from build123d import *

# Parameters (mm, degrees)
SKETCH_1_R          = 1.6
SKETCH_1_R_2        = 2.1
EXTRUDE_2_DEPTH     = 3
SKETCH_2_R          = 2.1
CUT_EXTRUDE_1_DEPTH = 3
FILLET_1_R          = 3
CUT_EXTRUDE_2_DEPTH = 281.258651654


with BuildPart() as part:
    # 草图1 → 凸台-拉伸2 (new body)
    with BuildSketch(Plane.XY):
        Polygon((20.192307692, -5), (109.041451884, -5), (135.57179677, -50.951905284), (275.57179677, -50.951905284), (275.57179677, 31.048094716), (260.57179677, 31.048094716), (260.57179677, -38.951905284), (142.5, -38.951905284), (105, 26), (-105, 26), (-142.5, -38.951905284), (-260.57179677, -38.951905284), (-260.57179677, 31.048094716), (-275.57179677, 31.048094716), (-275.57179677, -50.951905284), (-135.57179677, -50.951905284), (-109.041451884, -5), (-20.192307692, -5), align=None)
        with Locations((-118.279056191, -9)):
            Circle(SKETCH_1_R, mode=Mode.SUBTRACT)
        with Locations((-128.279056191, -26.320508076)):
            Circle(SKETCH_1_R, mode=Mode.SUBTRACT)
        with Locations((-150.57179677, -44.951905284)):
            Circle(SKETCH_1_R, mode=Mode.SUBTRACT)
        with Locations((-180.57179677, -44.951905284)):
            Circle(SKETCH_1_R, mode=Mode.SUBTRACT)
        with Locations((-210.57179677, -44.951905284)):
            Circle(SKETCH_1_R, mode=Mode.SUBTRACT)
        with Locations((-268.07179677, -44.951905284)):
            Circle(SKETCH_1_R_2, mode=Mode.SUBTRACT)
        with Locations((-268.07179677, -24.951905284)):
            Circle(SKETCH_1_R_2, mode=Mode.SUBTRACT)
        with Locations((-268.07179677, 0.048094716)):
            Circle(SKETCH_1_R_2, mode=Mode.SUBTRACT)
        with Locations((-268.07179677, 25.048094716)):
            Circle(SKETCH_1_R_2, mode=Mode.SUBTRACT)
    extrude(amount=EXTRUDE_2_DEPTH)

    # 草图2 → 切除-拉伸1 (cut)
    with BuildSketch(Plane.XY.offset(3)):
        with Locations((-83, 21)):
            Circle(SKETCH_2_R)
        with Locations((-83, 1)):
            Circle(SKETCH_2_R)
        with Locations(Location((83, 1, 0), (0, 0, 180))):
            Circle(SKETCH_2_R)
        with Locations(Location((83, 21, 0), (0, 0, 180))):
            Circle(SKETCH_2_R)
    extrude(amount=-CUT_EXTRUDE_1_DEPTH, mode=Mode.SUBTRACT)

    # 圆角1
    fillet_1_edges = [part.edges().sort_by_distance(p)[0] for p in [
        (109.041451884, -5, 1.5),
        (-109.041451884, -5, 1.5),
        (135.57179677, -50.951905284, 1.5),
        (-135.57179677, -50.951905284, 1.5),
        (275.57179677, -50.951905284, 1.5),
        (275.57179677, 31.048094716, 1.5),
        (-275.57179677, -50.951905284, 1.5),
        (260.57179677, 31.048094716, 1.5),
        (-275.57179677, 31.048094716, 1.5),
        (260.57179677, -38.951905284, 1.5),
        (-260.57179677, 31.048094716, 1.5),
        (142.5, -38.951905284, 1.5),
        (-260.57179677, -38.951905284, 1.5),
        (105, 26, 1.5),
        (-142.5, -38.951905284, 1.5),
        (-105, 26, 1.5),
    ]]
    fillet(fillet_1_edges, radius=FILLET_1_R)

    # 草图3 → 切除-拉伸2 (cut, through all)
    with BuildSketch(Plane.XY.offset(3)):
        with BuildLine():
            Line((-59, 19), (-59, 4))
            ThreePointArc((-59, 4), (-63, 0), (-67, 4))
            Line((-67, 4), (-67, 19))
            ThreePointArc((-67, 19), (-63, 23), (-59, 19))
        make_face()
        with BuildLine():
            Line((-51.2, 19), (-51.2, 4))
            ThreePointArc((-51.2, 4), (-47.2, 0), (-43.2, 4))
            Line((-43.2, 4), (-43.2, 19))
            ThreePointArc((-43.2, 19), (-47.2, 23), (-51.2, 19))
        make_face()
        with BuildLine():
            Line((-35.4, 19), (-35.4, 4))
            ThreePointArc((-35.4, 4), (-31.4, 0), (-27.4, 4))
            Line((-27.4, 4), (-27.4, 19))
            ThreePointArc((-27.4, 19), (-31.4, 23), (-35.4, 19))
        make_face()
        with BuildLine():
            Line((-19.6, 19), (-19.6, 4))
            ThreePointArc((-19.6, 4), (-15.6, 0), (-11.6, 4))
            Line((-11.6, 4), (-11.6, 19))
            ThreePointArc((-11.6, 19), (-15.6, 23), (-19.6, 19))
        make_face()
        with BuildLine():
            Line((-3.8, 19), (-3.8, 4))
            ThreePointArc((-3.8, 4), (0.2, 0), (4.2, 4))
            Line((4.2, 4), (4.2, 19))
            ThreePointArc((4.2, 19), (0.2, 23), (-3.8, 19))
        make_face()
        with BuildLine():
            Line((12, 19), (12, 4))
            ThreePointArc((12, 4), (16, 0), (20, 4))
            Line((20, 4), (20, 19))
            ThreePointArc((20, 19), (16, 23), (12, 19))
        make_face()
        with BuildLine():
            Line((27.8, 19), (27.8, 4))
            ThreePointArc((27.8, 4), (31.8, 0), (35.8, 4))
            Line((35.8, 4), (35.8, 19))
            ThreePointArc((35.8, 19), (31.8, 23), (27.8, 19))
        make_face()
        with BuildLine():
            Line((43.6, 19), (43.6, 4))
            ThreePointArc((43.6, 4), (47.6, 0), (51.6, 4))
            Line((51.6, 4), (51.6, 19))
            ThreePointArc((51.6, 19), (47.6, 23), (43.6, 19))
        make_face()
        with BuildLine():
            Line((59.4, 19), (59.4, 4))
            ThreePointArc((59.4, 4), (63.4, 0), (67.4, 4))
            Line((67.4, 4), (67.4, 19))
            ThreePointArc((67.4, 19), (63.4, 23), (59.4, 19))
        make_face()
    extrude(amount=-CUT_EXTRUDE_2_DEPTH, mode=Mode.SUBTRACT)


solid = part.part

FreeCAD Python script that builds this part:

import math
import FreeCAD as App
import Part
import Sketcher
Q = App.Units.Quantity


def edges_at(feature, points):
    """Names of the edges that pass closest to the given points."""
    edges = feature.Shape.Edges
    near = lambda p: min(range(len(edges)), key=lambda i: edges[i].distToShape(Part.Vertex(*p))[0])
    return sorted({f"Edge{near(p) + 1}" for p in points})


def add_polygon(sketch, points):
    """Adds a closed chain of lines whose ends are joined by coincident constraints."""
    first, n = sketch.GeometryCount, len(points)
    for a, b in zip(points, points[1:] + points[:1]):
        sketch.addGeometry(Part.LineSegment(App.Vector(*a, 0), App.Vector(*b, 0)), False)
    for i in range(n):
        sketch.addConstraint(Sketcher.Constraint("Coincident", first + i, 2, first + (i + 1) % n, 1))

doc = App.newDocument("Part")
body = doc.addObject("PartDesign::Body", "Body")

sketch1 = body.newObject("Sketcher::SketchObject", "Sketch")
sketch1.AttachmentSupport = (doc.getObject("XY_Plane"), [""])
sketch1.MapMode = "FlatFace"
add_polygon(sketch1, [(109, -5), (135.6, -51), (275.6, -51), (275.6, 31), (260.6, 31), (260.6, -39), (142.5, -39), (105, 26), (-105, 26), (-142.5, -39), (-260.6, -39), (-260.6, 31), (-275.6, 31), (-275.6, -51), (-135.6, -51), (-109, -5)])
sketch1.addGeometry(Part.Circle(App.Vector(-268.1, -45, 0), App.Vector(0, 0, 1), 2.1), False)
sketch1.addGeometry(Part.Circle(App.Vector(-210.6, -45, 0), App.Vector(0, 0, 1), 1.6), False)
sketch1.addGeometry(Part.Circle(App.Vector(-268.1, -25, 0), App.Vector(0, 0, 1), 2.1), False)
sketch1.addGeometry(Part.Circle(App.Vector(-180.6, -45, 0), App.Vector(0, 0, 1), 1.6), False)
sketch1.addGeometry(Part.Circle(App.Vector(-150.6, -45, 0), App.Vector(0, 0, 1), 1.6), False)
sketch1.addGeometry(Part.Circle(App.Vector(-128.3, -26.3, 0), App.Vector(0, 0, 1), 1.6), False)
sketch1.addGeometry(Part.Circle(App.Vector(-268.1, 0, 0), App.Vector(0, 0, 1), 2.1), False)
sketch1.addGeometry(Part.Circle(App.Vector(-268.1, 25, 0), App.Vector(0, 0, 1), 2.1), False)
sketch1.addGeometry(Part.Circle(App.Vector(-118.3, -9, 0), App.Vector(0, 0, 1), 1.6), False)
sketch1.addConstraint([
    Sketcher.Constraint("Horizontal", 1),
    Sketcher.Constraint("Vertical", 2),
    Sketcher.Constraint("Horizontal", 3),
    Sketcher.Constraint("Vertical", 4),
    Sketcher.Constraint("Horizontal", 5),
    Sketcher.Constraint("Horizontal", 7),
    Sketcher.Constraint("Horizontal", 9),
    Sketcher.Constraint("Vertical", 10),
    Sketcher.Constraint("Horizontal", 11),
    Sketcher.Constraint("Vertical", 12),
    Sketcher.Constraint("Horizontal", 13),
    Sketcher.Constraint("Horizontal", 15),
    Sketcher.Constraint("Equal", 16, 18),
    Sketcher.Constraint("Equal", 17, 19),
    Sketcher.Constraint("Equal", 19, 20),
    Sketcher.Constraint("Equal", 20, 21),
    Sketcher.Constraint("Equal", 18, 22),
    Sketcher.Constraint("Equal", 22, 23),
    Sketcher.Constraint("Equal", 21, 24),
    Sketcher.Constraint("Symmetric", 5, 2, 8, 2, -2),
    Sketcher.Constraint("Symmetric", 3, 2, 10, 2, -2),
    Sketcher.Constraint("Symmetric", 1, 2, 12, 2, -2),
    Sketcher.Constraint("Parallel", 0, 6),
    Sketcher.Constraint("Parallel", 8, 14),
    Sketcher.Constraint("Horizontal", 16, 3, 17, 3),
    Sketcher.Constraint("Horizontal", 17, 3, 19, 3),
    Sketcher.Constraint("Horizontal", 19, 3, 20, 3),
    Sketcher.Constraint("Vertical", 16, 3, 18, 3),
    Sketcher.Constraint("Vertical", 18, 3, 22, 3),
    Sketcher.Constraint("Vertical", 22, 3, 23, 3),
    Sketcher.Constraint("Equal", 1, 13),
    Sketcher.Constraint("Equal", 6, 8),
    Sketcher.Constraint("Diameter", 16, 4.2),
    Sketcher.Constraint("Diameter", 17, 3.2),
    Sketcher.Constraint("DistanceX", 1, 1, 1, 2, 140.0),
    Sketcher.Constraint("DistanceX", 3, 2, 3, 1, 15.0),
    Sketcher.Constraint("DistanceX", 7, 2, 7, 1, 210.0),
    Sketcher.Constraint("DistanceY", 2, 1, 2, 2, 82.0),
    Sketcher.Constraint("DistanceY", 4, 2, 4, 1, 70.0),
    Sketcher.Constraint("Angle", 0, Q("-60 deg")),
    Sketcher.Constraint("Distance", 6, 75.0),
    Sketcher.Constraint("DistanceY", 24, 3, -1, 1, 9.0),
    Sketcher.Constraint("DistanceY", -1, 1, 6, 2, 26.0),
    Sketcher.Constraint("DistanceY", 14, 2, -1, 1, 5.0),
    Sketcher.Constraint("DistanceY", 16, 3, 18, 3, 20.0),
    Sketcher.Constraint("DistanceX", 17, 3, 19, 3, 30.0),
    Sketcher.Constraint("DistanceX", 19, 3, 20, 3, 30.0),
    Sketcher.Constraint("DistanceY", 18, 3, 22, 3, 25.0),
    Sketcher.Constraint("DistanceY", 22, 3, 23, 3, 25.0),
    Sketcher.Constraint("DistanceX", 21, 3, 24, 3, 10.0),
    Sketcher.Constraint("DistanceY", 0, 2, 20, 3, 6.0),
    Sketcher.Constraint("DistanceX", 9, 2, 17, 3, 50.0),
    Sketcher.Constraint("DistanceX", 16, 3, 17, 3, 57.5),
    Sketcher.Constraint("DistanceX", 5, 2, 5, 1, 118.071797),
    Sketcher.Constraint("DistanceY", 21, 3, -1, 1, 26.320508),
    Sketcher.Constraint("DistanceX", 20, 3, 21, 3, 22.292741),
])
pad1 = body.newObject("PartDesign::Pad", "Pad")
pad1.Profile = sketch1
pad1.Length = 3

sketch2 = body.newObject("Sketcher::SketchObject", "Sketch001")
sketch2.AttachmentSupport = (doc.getObject("XY_Plane"), [""])
sketch2.MapMode = "FlatFace"
sketch2.AttachmentOffset = App.Placement(App.Vector(0, 0, 3), App.Rotation())
sketch2.addGeometry([
    Part.Circle(App.Vector(-83, 21, 0), App.Vector(0, 0, 1), 2.1),
    Part.Circle(App.Vector(-83, 1, 0), App.Vector(0, 0, 1), 2.1),
    Part.Circle(App.Vector(83, 1, 0), App.Vector(0, 0, 1), 2.1),
    Part.Circle(App.Vector(83, 21, 0), App.Vector(0, 0, 1), 2.1),
], False)
sketch2.addConstraint([
    Sketcher.Constraint("Equal", 0, 1),
    Sketcher.Constraint("Equal", 1, 2),
    Sketcher.Constraint("Equal", 2, 3),
    Sketcher.Constraint("Symmetric", 1, 3, 2, 3, -2),
    Sketcher.Constraint("Symmetric", 0, 3, 3, 3, -2),
    Sketcher.Constraint("Vertical", 0, 3, 1, 3),
    Sketcher.Constraint("Diameter", 0, 4.2),
    Sketcher.Constraint("DistanceX", 0, 3, -1, 1, 83.0),
    Sketcher.Constraint("DistanceY", -1, 1, 0, 3, 21.0),
    Sketcher.Constraint("DistanceY", -1, 1, 1, 3, 1.0),
])
pocket1 = body.newObject("PartDesign::Pocket", "Pocket")
pocket1.Profile = sketch2
pocket1.Length = 3
doc.recompute()

fillet = body.newObject("PartDesign::Fillet", "Fillet")
fillet.Base = (pocket1, edges_at(pocket1, [
    (109.041, -5, 1.5),
    (-109.041, -5, 1.5),
    (135.572, -50.952, 1.5),
    (-135.572, -50.952, 1.5),
    (275.572, -50.952, 1.5),
    (275.572, 31.048, 1.5),
    (-275.572, -50.952, 1.5),
    (260.572, 31.048, 1.5),
    (-275.572, 31.048, 1.5),
    (260.572, -38.952, 1.5),
    (-260.572, 31.048, 1.5),
    (142.5, -38.952, 1.5),
    (-260.572, -38.952, 1.5),
    (105, 26, 1.5),
    (-142.5, -38.952, 1.5),
    (-105, 26, 1.5),
]))
fillet.Radius = 3

sketch3 = body.newObject("Sketcher::SketchObject", "Sketch002")
sketch3.AttachmentSupport = (doc.getObject("XY_Plane"), [""])
sketch3.MapMode = "FlatFace"
sketch3.AttachmentOffset = App.Placement(App.Vector(0, 0, 3), App.Rotation())
sketch3.addGeometry([
    Part.LineSegment(App.Vector(-59, 4, 0), App.Vector(-59, 19, 0)),
    Part.ArcOfCircle(Part.Circle(App.Vector(-63, 19, 0), App.Vector(0, 0, 1), 4), math.radians(0), math.radians(180)),
    Part.LineSegment(App.Vector(-67, 19, 0), App.Vector(-67, 4, 0)),
    Part.ArcOfCircle(Part.Circle(App.Vector(-63, 4, 0), App.Vector(0, 0, 1), 4), math.radians(180), math.radians(360)),
    Part.LineSegment(App.Vector(-51.2, 19, 0), App.Vector(-51.2, 4, 0)),
    Part.ArcOfCircle(Part.Circle(App.Vector(-47.2, 4, 0), App.Vector(0, 0, 1), 4), math.radians(180), math.radians(360)),
    Part.LineSegment(App.Vector(-43.2, 4, 0), App.Vector(-43.2, 19, 0)),
    Part.ArcOfCircle(Part.Circle(App.Vector(-47.2, 19, 0), App.Vector(0, 0, 1), 4), math.radians(0), math.radians(180)),
    Part.LineSegment(App.Vector(-35.4, 19, 0), App.Vector(-35.4, 4, 0)),
    Part.ArcOfCircle(Part.Circle(App.Vector(-31.4, 4, 0), App.Vector(0, 0, 1), 4), math.radians(180), math.radians(360)),
    Part.LineSegment(App.Vector(-27.4, 4, 0), App.Vector(-27.4, 19, 0)),
    Part.ArcOfCircle(Part.Circle(App.Vector(-31.4, 19, 0), App.Vector(0, 0, 1), 4), math.radians(0), math.radians(180)),
    Part.LineSegment(App.Vector(-19.6, 19, 0), App.Vector(-19.6, 4, 0)),
    Part.ArcOfCircle(Part.Circle(App.Vector(-15.6, 4, 0), App.Vector(0, 0, 1), 4), math.radians(180), math.radians(360)),
    Part.LineSegment(App.Vector(-11.6, 4, 0), App.Vector(-11.6, 19, 0)),
    Part.ArcOfCircle(Part.Circle(App.Vector(-15.6, 19, 0), App.Vector(0, 0, 1), 4), math.radians(0), math.radians(180)),
    Part.LineSegment(App.Vector(-3.8, 19, 0), App.Vector(-3.8, 4, 0)),
    Part.ArcOfCircle(Part.Circle(App.Vector(0.2, 4, 0), App.Vector(0, 0, 1), 4), math.radians(180), math.radians(360)),
    Part.LineSegment(App.Vector(4.2, 4, 0), App.Vector(4.2, 19, 0)),
    Part.ArcOfCircle(Part.Circle(App.Vector(0.2, 19, 0), App.Vector(0, 0, 1), 4), math.radians(0), math.radians(180)),
    Part.LineSegment(App.Vector(12, 19, 0), App.Vector(12, 4, 0)),
    Part.ArcOfCircle(Part.Circle(App.Vector(16, 4, 0), App.Vector(0, 0, 1), 4), math.radians(180), math.radians(360)),
    Part.LineSegment(App.Vector(20, 4, 0), App.Vector(20, 19, 0)),
    Part.ArcOfCircle(Part.Circle(App.Vector(16, 19, 0), App.Vector(0, 0, 1), 4), math.radians(0), math.radians(180)),
    Part.LineSegment(App.Vector(27.8, 19, 0), App.Vector(27.8, 4, 0)),
    Part.ArcOfCircle(Part.Circle(App.Vector(31.8, 4, 0), App.Vector(0, 0, 1), 4), math.radians(180), math.radians(360)),
    Part.LineSegment(App.Vector(35.8, 4, 0), App.Vector(35.8, 19, 0)),
    Part.ArcOfCircle(Part.Circle(App.Vector(31.8, 19, 0), App.Vector(0, 0, 1), 4), math.radians(0), math.radians(180)),
    Part.LineSegment(App.Vector(43.6, 19, 0), App.Vector(43.6, 4, 0)),
    Part.ArcOfCircle(Part.Circle(App.Vector(47.6, 4, 0), App.Vector(0, 0, 1), 4), math.radians(180), math.radians(360)),
    Part.LineSegment(App.Vector(51.6, 4, 0), App.Vector(51.6, 19, 0)),
    Part.ArcOfCircle(Part.Circle(App.Vector(47.6, 19, 0), App.Vector(0, 0, 1), 4), math.radians(0), math.radians(180)),
    Part.LineSegment(App.Vector(59.4, 19, 0), App.Vector(59.4, 4, 0)),
    Part.ArcOfCircle(Part.Circle(App.Vector(63.4, 4, 0), App.Vector(0, 0, 1), 4), math.radians(180), math.radians(360)),
    Part.LineSegment(App.Vector(67.4, 4, 0), App.Vector(67.4, 19, 0)),
    Part.ArcOfCircle(Part.Circle(App.Vector(63.4, 19, 0), App.Vector(0, 0, 1), 4), math.radians(0), math.radians(180)),
], False)
sketch3.addConstraint([
    Sketcher.Constraint("Tangent", 0, 2, 1, 1),
    Sketcher.Constraint("Tangent", 1, 2, 2, 1),
    Sketcher.Constraint("Tangent", 2, 2, 3, 1),
    Sketcher.Constraint("Tangent", 3, 2, 0, 1),
    Sketcher.Constraint("Tangent", 4, 2, 5, 1),
    Sketcher.Constraint("Tangent", 5, 2, 6, 1),
    Sketcher.Constraint("Tangent", 6, 2, 7, 1),
    Sketcher.Constraint("Tangent", 7, 2, 4, 1),
    Sketcher.Constraint("Tangent", 8, 2, 9, 1),
    Sketcher.Constraint("Tangent", 9, 2, 10, 1),
    Sketcher.Constraint("Tangent", 10, 2, 11, 1),
    Sketcher.Constraint("Tangent", 11, 2, 8, 1),
    Sketcher.Constraint("Tangent", 12, 2, 13, 1),
    Sketcher.Constraint("Tangent", 13, 2, 14, 1),
    Sketcher.Constraint("Tangent", 14, 2, 15, 1),
    Sketcher.Constraint("Tangent", 15, 2, 12, 1),
    Sketcher.Constraint("Tangent", 16, 2, 17, 1),
    Sketcher.Constraint("Tangent", 17, 2, 18, 1),
    Sketcher.Constraint("Tangent", 18, 2, 19, 1),
    Sketcher.Constraint("Tangent", 19, 2, 16, 1),
    Sketcher.Constraint("Tangent", 20, 2, 21, 1),
    Sketcher.Constraint("Tangent", 21, 2, 22, 1),
    Sketcher.Constraint("Tangent", 22, 2, 23, 1),
    Sketcher.Constraint("Tangent", 23, 2, 20, 1),
    Sketcher.Constraint("Tangent", 24, 2, 25, 1),
    Sketcher.Constraint("Tangent", 25, 2, 26, 1),
    Sketcher.Constraint("Tangent", 26, 2, 27, 1),
    Sketcher.Constraint("Tangent", 27, 2, 24, 1),
    Sketcher.Constraint("Tangent", 28, 2, 29, 1),
    Sketcher.Constraint("Tangent", 29, 2, 30, 1),
    Sketcher.Constraint("Tangent", 30, 2, 31, 1),
    Sketcher.Constraint("Tangent", 31, 2, 28, 1),
    Sketcher.Constraint("Tangent", 32, 2, 33, 1),
    Sketcher.Constraint("Tangent", 33, 2, 34, 1),
    Sketcher.Constraint("Tangent", 34, 2, 35, 1),
    Sketcher.Constraint("Tangent", 35, 2, 32, 1),
    Sketcher.Constraint("Vertical", 0),
    Sketcher.Constraint("Vertical", 2),
    Sketcher.Constraint("Vertical", 4),
    Sketcher.Constraint("Vertical", 6),
    Sketcher.Constraint("Vertical", 8),
    Sketcher.Constraint("Vertical", 10),
    Sketcher.Constraint("Vertical", 12),
    Sketcher.Constraint("Vertical", 14),
    Sketcher.Constraint("Vertical", 16),
    Sketcher.Constraint("Vertical", 18),
    Sketcher.Constraint("Vertical", 20),
    Sketcher.Constraint("Vertical", 22),
    Sketcher.Constraint("Vertical", 24),
    Sketcher.Constraint("Vertical", 26),
    Sketcher.Constraint("Vertical", 28),
    Sketcher.Constraint("Vertical", 30),
    Sketcher.Constraint("Vertical", 32),
    Sketcher.Constraint("Vertical", 34),
    Sketcher.Constraint("Equal", 3, 5),
    Sketcher.Constraint("Equal", 7, 9),
    Sketcher.Constraint("Equal", 11, 13),
    Sketcher.Constraint("Equal", 15, 17),
    Sketcher.Constraint("Equal", 19, 21),
    Sketcher.Constraint("Equal", 23, 25),
    Sketcher.Constraint("Equal", 27, 29),
    Sketcher.Constraint("Equal", 31, 33),
    Sketcher.Constraint("Horizontal", 3, 3, 5, 3),
    Sketcher.Constraint("Horizontal", 1, 3, 7, 3),
    Sketcher.Constraint("Horizontal", 5, 3, 9, 3),
    Sketcher.Constraint("Horizontal", 7, 3, 11, 3),
    Sketcher.Constraint("Horizontal", 9, 3, 13, 3),
    Sketcher.Constraint("Horizontal", 11, 3, 15, 3),
    Sketcher.Constraint("Horizontal", 13, 3, 17, 3),
    Sketcher.Constraint("Horizontal", 15, 3, 19, 3),
    Sketcher.Constraint("Horizontal", 17, 3, 21, 3),
    Sketcher.Constraint("Horizontal", 19, 3, 23, 3),
    Sketcher.Constraint("Horizontal", 21, 3, 25, 3),
    Sketcher.Constraint("Horizontal", 23, 3, 27, 3),
    Sketcher.Constraint("Horizontal", 25, 3, 29, 3),
    Sketcher.Constraint("Horizontal", 27, 3, 31, 3),
    Sketcher.Constraint("Horizontal", 29, 3, 33, 3),
    Sketcher.Constraint("Horizontal", 31, 3, 35, 3),
    Sketcher.Constraint("Radius", 1, 4.0),
    Sketcher.Constraint("DistanceY", 0, 1, 0, 2, 15.0),
    Sketcher.Constraint("DistanceX", 1, 3, -1, 1, 63.0),
    Sketcher.Constraint("DistanceY", -1, 1, 1, 3, 19.0),
    Sketcher.Constraint("DistanceX", -1, 1, 21, 3, 16.0),
    Sketcher.Constraint("DistanceX", 5, 3, -1, 1, 47.2),
    Sketcher.Constraint("DistanceX", 9, 3, -1, 1, 31.4),
    Sketcher.Constraint("DistanceX", 13, 3, -1, 1, 15.6),
    Sketcher.Constraint("DistanceX", -1, 1, 17, 3, 0.2),
    Sketcher.Constraint("DistanceX", -1, 1, 25, 3, 31.8),
    Sketcher.Constraint("DistanceX", -1, 1, 29, 3, 47.6),
    Sketcher.Constraint("DistanceX", -1, 1, 33, 3, 63.4),
])
pocket2 = body.newObject("PartDesign::Pocket", "Pocket001")
pocket2.Profile = sketch3
pocket2.Type = "ThroughAll"

doc.recompute()
